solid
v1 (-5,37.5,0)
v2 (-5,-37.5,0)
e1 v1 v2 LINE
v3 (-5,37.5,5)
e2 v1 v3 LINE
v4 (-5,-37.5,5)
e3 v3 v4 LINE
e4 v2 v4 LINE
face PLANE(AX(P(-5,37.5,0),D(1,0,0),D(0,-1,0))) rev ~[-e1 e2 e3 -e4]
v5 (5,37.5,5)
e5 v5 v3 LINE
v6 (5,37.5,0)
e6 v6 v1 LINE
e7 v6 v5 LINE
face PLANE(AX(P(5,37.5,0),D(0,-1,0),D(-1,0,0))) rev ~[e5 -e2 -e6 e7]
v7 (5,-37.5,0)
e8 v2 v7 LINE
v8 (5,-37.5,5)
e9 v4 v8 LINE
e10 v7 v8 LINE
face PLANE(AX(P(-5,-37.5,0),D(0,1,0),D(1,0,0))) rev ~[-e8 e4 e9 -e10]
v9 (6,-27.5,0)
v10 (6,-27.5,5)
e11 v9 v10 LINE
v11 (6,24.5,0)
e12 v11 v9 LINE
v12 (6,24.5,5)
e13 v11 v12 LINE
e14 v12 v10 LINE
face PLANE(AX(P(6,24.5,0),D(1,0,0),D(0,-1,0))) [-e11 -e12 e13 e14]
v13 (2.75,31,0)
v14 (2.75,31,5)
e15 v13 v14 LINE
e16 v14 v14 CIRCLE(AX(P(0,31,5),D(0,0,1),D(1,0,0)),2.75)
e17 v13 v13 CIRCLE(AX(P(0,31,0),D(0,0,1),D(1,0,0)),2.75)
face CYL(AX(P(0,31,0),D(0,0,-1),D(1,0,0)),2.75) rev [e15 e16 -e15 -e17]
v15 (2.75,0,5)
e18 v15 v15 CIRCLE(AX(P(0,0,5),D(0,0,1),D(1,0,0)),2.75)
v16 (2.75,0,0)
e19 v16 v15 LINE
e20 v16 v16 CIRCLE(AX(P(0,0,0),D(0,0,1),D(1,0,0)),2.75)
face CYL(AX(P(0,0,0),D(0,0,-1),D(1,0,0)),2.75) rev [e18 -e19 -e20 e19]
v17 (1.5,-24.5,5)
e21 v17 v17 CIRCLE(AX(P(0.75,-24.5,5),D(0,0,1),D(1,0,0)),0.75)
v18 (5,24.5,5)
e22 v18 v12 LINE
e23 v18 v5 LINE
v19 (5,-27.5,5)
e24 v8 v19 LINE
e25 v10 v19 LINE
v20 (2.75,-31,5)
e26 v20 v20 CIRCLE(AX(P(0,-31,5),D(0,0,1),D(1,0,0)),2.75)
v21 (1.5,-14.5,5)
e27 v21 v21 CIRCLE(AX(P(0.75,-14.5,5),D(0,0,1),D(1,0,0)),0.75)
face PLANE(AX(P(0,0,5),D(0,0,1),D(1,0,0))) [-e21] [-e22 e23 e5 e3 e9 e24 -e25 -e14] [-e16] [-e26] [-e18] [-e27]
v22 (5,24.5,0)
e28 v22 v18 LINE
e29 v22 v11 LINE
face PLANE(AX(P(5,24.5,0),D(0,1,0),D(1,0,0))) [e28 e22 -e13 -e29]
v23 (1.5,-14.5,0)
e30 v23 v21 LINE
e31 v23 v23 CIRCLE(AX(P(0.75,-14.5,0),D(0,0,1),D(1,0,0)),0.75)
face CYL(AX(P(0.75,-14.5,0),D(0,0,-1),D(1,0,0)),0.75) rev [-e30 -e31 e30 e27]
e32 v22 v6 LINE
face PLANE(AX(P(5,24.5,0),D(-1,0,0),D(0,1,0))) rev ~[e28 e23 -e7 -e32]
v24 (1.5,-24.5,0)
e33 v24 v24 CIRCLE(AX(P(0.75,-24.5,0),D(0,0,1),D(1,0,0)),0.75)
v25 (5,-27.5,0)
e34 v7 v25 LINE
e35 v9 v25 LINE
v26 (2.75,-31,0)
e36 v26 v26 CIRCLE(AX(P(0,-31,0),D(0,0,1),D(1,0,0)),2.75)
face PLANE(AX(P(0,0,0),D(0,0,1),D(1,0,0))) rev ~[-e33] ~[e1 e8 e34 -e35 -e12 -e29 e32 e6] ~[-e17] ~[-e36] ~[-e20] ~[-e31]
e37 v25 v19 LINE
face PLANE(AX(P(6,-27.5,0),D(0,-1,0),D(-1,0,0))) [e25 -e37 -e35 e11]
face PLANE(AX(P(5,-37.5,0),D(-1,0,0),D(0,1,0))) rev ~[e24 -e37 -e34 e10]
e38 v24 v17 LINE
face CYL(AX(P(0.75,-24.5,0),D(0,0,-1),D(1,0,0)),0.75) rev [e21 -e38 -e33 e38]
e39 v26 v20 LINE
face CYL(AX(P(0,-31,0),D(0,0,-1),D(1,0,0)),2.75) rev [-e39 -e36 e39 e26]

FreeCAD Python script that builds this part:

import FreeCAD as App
import Part
import Sketcher

doc = App.newDocument("Part")
body = doc.addObject("PartDesign::Body", "Body")

sketch1 = doc.addObject("Sketcher::SketchObject", "Sketch")
body.addObject(sketch1)
sketch1.AttachmentSupport = (doc.XY_Plane, [""])
sketch1.MapMode = "FlatFace"
sketch1.addGeometry([
    Part.LineSegment(App.Vector(-5, 37.5, 0), App.Vector(-5, -37.5, 0)),
    Part.LineSegment(App.Vector(-5, -37.5, 0), App.Vector(5, -37.5, 0)),
    Part.LineSegment(App.Vector(5, -37.5, 0), App.Vector(5, -27.5, 0)),
    Part.LineSegment(App.Vector(5, -27.5, 0), App.Vector(6, -27.5, 0)),
    Part.LineSegment(App.Vector(6, -27.5, 0), App.Vector(6, 24.5, 0)),
    Part.LineSegment(App.Vector(6, 24.5, 0), App.Vector(5, 24.5, 0)),
    Part.LineSegment(App.Vector(5, 24.5, 0), App.Vector(5, 37.5, 0)),
    Part.LineSegment(App.Vector(5, 37.5, 0), App.Vector(-5, 37.5, 0)),
    Part.Circle(App.Vector(0, -31, 0), App.Vector(0, 0, 1), 2.8),
    Part.Circle(App.Vector(0, 0, 0), App.Vector(0, 0, 1), 2.8),
    Part.Circle(App.Vector(0, 31, 0), App.Vector(0, 0, 1), 2.8),
    Part.Circle(App.Vector(0.8, -24.5, 0), App.Vector(0, 0, 1), 0.8),
    Part.Circle(App.Vector(0.8, -14.5, 0), App.Vector(0, 0, 1), 0.8),
], False)
sketch1.addConstraint([
    Sketcher.Constraint("Coincident", 0, 2, 1, 1),
    Sketcher.Constraint("Coincident", 1, 2, 2, 1),
    Sketcher.Constraint("Coincident", 2, 2, 3, 1),
    Sketcher.Constraint("Coincident", 3, 2, 4, 1),
    Sketcher.Constraint("Coincident", 4, 2, 5, 1),
    Sketcher.Constraint("Coincident", 5, 2, 6, 1),
    Sketcher.Constraint("Coincident", 6, 2, 7, 1),
    Sketcher.Constraint("Coincident", 7, 2, 0, 1),
    Sketcher.Constraint("Vertical", 0),
    Sketcher.Constraint("Horizontal", 1),
    Sketcher.Constraint("Vertical", 2),
    Sketcher.Constraint("Horizontal", 3),
    Sketcher.Constraint("Vertical", 4),
    Sketcher.Constraint("Horizontal", 5),
    Sketcher.Constraint("Vertical", 6),
    Sketcher.Constraint("Horizontal", 7),
    Sketcher.Constraint("Coincident", 9, 3, -1, 1),
    Sketcher.Constraint("Equal", 8, 9),
    Sketcher.Constraint("Equal", 9, 10),
    Sketcher.Constraint("Equal", 11, 12),
    Sketcher.Constraint("Symmetric", 8, 3, 10, 3, -1, 1),
    Sketcher.Constraint("Symmetric", 0, 2, 6, 2, -1, 1),
    Sketcher.Constraint("PointOnObject", 8, 3, -2),
    Sketcher.Constraint("Vertical", 11, 3, 12, 3),
    Sketcher.Constraint("Vertical", 2, 2, 5, 2),
    Sketcher.Constraint("Equal", 7, 2),
    Sketcher.Constraint("Diameter", 8, 5.5),
    Sketcher.Constraint("Diameter", 11, 1.5),
    Sketcher.Constraint("DistanceX", 1, 1, 1, 2, 10.0),
    Sketcher.Constraint("DistanceX", 3, 1, 3, 2, 1.0),
    Sketcher.Constraint("DistanceY", 0, 2, 0, 1, 75.0),
    Sketcher.Constraint("DistanceY", 6, 1, 6, 2, 13.0),
    Sketcher.Constraint("DistanceY", 8, 3, -1, 1, 31.0),
    Sketcher.Constraint("DistanceY", 11, 3, 12, 3, 10.0),
    Sketcher.Constraint("DistanceY", 0, 2, 11, 3, 13.0),
    Sketcher.Constraint("DistanceX", -1, 1, 11, 3, 0.75),
])
pad1 = doc.addObject("PartDesign::Pad", "Pad")
body.addObject(pad1)
pad1.Profile = sketch1
pad1.Length = 5

doc.recompute()
